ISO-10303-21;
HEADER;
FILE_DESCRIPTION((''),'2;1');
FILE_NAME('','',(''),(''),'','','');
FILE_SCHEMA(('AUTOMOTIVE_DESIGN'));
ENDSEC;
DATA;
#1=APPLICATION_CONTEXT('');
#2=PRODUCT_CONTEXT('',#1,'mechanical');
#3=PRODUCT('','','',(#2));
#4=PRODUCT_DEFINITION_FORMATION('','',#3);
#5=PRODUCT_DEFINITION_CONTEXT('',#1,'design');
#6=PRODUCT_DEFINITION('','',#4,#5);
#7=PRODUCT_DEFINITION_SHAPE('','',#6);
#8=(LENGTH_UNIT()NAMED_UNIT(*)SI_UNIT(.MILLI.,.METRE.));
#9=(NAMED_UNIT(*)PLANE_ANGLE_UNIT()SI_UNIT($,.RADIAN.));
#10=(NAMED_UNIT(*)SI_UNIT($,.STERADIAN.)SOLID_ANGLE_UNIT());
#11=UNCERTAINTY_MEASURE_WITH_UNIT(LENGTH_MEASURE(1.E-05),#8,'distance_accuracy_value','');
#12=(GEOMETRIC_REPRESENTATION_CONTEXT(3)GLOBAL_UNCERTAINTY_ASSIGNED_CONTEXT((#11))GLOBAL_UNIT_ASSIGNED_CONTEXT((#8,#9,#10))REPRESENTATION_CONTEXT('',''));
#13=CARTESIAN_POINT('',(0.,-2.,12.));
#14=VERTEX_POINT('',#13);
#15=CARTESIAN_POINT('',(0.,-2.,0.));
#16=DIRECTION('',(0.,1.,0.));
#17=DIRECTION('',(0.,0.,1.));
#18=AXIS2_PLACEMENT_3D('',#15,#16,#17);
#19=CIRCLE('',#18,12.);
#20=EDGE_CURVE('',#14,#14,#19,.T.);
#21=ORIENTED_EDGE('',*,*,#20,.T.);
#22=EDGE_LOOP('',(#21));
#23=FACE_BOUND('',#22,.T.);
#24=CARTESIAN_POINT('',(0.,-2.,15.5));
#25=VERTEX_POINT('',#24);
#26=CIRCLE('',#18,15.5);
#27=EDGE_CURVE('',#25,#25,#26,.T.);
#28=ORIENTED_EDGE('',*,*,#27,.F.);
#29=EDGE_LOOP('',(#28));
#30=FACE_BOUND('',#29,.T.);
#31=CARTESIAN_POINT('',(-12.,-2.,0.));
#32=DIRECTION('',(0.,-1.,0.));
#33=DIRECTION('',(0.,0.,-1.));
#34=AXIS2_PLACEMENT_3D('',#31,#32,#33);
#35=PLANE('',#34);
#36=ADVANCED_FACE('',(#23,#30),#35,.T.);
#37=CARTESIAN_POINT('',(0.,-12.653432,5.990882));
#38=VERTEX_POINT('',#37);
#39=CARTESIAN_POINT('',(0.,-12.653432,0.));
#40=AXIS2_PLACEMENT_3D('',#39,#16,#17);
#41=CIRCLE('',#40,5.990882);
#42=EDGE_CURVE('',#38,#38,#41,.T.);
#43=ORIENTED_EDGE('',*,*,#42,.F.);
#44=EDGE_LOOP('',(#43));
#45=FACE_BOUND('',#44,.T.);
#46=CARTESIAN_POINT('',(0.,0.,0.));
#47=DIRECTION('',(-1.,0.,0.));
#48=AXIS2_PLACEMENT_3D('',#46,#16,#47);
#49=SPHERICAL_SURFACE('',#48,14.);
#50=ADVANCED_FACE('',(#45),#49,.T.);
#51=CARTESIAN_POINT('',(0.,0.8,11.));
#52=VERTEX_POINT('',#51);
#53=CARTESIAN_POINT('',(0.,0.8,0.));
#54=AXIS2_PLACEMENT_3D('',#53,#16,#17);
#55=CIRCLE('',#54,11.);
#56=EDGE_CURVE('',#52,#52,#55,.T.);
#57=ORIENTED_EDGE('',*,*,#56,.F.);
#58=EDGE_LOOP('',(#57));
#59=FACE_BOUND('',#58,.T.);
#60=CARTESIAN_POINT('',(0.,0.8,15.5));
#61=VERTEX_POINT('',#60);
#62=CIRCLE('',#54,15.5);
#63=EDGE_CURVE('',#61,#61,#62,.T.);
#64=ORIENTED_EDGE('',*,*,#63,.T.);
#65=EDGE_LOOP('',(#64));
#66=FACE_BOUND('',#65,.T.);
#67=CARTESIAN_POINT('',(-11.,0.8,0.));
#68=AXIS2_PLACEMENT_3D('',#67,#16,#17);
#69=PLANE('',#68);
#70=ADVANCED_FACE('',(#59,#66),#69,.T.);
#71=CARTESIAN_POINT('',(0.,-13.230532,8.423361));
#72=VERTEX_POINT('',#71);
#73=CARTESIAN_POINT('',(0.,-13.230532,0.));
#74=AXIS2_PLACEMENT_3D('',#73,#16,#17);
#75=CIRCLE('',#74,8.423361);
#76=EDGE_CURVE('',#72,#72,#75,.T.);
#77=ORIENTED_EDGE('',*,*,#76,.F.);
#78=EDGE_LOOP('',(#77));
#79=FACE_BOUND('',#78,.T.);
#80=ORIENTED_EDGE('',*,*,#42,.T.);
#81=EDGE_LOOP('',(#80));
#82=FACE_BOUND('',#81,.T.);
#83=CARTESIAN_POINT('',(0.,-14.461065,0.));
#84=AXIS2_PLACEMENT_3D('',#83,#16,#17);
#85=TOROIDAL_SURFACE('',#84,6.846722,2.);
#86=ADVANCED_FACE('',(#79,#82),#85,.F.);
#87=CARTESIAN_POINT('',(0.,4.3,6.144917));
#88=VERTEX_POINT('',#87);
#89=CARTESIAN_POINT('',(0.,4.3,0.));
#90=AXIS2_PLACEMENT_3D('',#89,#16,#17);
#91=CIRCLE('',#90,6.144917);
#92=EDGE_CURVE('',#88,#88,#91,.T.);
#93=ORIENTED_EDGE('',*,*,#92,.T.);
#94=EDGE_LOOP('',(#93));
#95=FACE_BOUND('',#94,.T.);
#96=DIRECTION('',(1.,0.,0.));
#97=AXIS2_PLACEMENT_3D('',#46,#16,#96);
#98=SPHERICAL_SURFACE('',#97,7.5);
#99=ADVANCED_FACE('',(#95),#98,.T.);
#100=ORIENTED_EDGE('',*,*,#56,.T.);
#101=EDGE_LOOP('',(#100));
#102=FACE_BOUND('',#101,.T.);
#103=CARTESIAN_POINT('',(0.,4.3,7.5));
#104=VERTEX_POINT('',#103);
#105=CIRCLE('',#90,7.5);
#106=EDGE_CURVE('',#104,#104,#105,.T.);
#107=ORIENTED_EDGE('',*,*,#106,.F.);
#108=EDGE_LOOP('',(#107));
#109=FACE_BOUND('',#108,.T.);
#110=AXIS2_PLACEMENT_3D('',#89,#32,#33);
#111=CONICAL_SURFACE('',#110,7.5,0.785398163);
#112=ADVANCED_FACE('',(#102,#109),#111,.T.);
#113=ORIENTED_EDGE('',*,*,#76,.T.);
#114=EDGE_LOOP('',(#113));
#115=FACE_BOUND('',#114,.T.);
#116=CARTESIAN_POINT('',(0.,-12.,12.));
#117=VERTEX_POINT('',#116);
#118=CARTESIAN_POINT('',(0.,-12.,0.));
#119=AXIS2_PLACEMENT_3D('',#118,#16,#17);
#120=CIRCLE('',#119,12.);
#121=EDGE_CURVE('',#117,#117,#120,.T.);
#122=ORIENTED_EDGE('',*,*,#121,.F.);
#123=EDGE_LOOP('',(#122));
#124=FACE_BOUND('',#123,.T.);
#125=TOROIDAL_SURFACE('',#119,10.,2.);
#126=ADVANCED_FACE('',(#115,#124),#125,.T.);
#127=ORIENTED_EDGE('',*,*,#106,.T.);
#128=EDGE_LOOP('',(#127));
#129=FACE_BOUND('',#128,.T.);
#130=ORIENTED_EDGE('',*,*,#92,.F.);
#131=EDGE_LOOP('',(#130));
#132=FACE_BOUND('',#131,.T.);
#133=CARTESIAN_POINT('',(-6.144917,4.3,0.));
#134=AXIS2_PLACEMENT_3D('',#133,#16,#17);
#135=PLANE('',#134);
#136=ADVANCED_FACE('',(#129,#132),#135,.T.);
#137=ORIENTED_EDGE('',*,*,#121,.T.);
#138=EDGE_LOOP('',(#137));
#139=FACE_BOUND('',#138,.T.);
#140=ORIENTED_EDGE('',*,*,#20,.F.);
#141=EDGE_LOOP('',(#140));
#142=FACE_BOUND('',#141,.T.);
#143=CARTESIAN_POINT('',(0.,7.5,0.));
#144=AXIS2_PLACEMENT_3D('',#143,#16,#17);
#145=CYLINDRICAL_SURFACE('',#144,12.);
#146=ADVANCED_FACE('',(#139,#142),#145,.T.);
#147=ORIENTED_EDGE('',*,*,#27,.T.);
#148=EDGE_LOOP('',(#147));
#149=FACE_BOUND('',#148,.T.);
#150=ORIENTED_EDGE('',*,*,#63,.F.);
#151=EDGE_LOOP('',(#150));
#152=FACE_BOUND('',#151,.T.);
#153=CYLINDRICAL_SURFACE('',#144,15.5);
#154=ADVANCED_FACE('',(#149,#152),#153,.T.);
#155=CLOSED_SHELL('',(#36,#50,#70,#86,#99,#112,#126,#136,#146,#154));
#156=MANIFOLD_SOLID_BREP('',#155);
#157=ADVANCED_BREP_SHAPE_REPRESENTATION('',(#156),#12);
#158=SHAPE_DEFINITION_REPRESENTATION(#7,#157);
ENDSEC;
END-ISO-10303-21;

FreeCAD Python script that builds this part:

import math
import FreeCAD as App
import Part
import Sketcher
from FreeCAD import Vector
Q = App.Units.Quantity

doc = App.newDocument("Part")
body = doc.addObject("PartDesign::Body", "Body")

# Sketch on XY plane
sketch1 = body.newObject("Sketcher::SketchObject", "Sketch")
sketch1.AttachmentSupport = (doc.getObject("XY_Plane"), [""])
sketch1.MapMode = "FlatFace"
sketch1.addGeometry(Part.LineSegment(Vector(-15.5, -2, 0), Vector(-12, -2, 0)), False)
sketch1.addGeometry(Part.LineSegment(Vector(-12, -2, 0), Vector(-12, -12, 0)), False)
sketch1.addGeometry(Part.ArcOfCircle(Part.Circle(Vector(-10, -12, 0), Vector(0, 0, 1), 2), math.radians(-180), math.radians(-38)), False)
sketch1.addGeometry(Part.ArcOfCircle(Part.Circle(Vector(-6.8, -14.5, 0), Vector(0, 0, 1), 2), math.radians(65), math.radians(142)), False)
sketch1.addGeometry(Part.ArcOfCircle(Part.Circle(Vector(0, 0, 0), Vector(0, 0, 1), 14), math.radians(-115), math.radians(-90)), False)
sketch1.addGeometry(Part.LineSegment(Vector(0, -14, 0), Vector(0, 7.5, 0)), False)
sketch1.addGeometry(Part.ArcOfCircle(Part.Circle(Vector(0, 0, 0), Vector(0, 0, 1), 7.5), math.radians(90), math.radians(145)), False)
sketch1.addGeometry(Part.LineSegment(Vector(-6.1, 4.3, 0), Vector(-7.5, 4.3, 0)), False)
sketch1.addGeometry(Part.LineSegment(Vector(-7.5, 4.3, 0), Vector(-11, 0.8, 0)), False)
sketch1.addGeometry(Part.LineSegment(Vector(-11, 0.8, 0), Vector(-15.5, 0.8, 0)), False)
sketch1.addGeometry(Part.LineSegment(Vector(-15.5, 0.8, 0), Vector(-15.5, -2, 0)), False)
sketch1.addConstraint(Sketcher.Constraint("Coincident", 0, 2, 1, 1))
sketch1.addConstraint(Sketcher.Constraint("Tangent", 1, 2, 2, 1))
sketch1.addConstraint(Sketcher.Constraint("Tangent", 2, 2, 3, 2))
sketch1.addConstraint(Sketcher.Constraint("Tangent", 3, 1, 4, 1))
sketch1.addConstraint(Sketcher.Constraint("Coincident", 4, 2, 5, 1))
sketch1.addConstraint(Sketcher.Constraint("Coincident", 5, 2, 6, 1))
sketch1.addConstraint(Sketcher.Constraint("Coincident", 6, 2, 7, 1))
sketch1.addConstraint(Sketcher.Constraint("Coincident", 7, 2, 8, 1))
sketch1.addConstraint(Sketcher.Constraint("Coincident", 8, 2, 9, 1))
sketch1.addConstraint(Sketcher.Constraint("Coincident", 9, 2, 10, 1))
sketch1.addConstraint(Sketcher.Constraint("Coincident", 10, 2, 0, 1))
sketch1.addConstraint(Sketcher.Constraint("Horizontal", 0))
sketch1.addConstraint(Sketcher.Constraint("Vertical", 1))
sketch1.addConstraint(Sketcher.Constraint("Vertical", 5))
sketch1.addConstraint(Sketcher.Constraint("Horizontal", 7))
sketch1.addConstraint(Sketcher.Constraint("Horizontal", 9))
sketch1.addConstraint(Sketcher.Constraint("Vertical", 10))
sketch1.addConstraint(Sketcher.Constraint("Coincident", 4, 3, -1, 1))
sketch1.addConstraint(Sketcher.Constraint("Coincident", 6, 3, -1, 1))
sketch1.addConstraint(Sketcher.Constraint("Equal", 2, 3))
sketch1.addConstraint(Sketcher.Constraint("PointOnObject", 4, 2, -2))
sketch1.addConstraint(Sketcher.Constraint("Radius", 2, 2.0))
sketch1.addConstraint(Sketcher.Constraint("Radius", 4, 14.0))
sketch1.addConstraint(Sketcher.Constraint("Radius", 6, 7.5))
sketch1.addConstraint(Sketcher.Constraint("DistanceY", 1, 2, 1, 1, 10.0))
sketch1.addConstraint(Sketcher.Constraint("Angle", 8, Q("-135 deg")))
sketch1.addConstraint(Sketcher.Constraint("DistanceX", 0, 1, 0, 2, 3.5))
sketch1.addConstraint(Sketcher.Constraint("DistanceX", 9, 2, 9, 1, 4.5))
sketch1.addConstraint(Sketcher.Constraint("DistanceY", 10, 2, 10, 1, 2.8))
sketch1.addConstraint(Sketcher.Constraint("DistanceX", 2, 3, -1, 1, 10.0))
sketch1.addConstraint(Sketcher.Constraint("DistanceY", 2, 3, -1, 1, 12.0))
sketch1.addConstraint(Sketcher.Constraint("DistanceX", 9, 2, 7, 2, 8.0))
revolution = body.newObject("PartDesign::Revolution", "Revolution")
revolution.Profile = sketch1
revolution.ReferenceAxis = (sketch1, ["V_Axis"])
revolution.Angle = 360

doc.recompute()
